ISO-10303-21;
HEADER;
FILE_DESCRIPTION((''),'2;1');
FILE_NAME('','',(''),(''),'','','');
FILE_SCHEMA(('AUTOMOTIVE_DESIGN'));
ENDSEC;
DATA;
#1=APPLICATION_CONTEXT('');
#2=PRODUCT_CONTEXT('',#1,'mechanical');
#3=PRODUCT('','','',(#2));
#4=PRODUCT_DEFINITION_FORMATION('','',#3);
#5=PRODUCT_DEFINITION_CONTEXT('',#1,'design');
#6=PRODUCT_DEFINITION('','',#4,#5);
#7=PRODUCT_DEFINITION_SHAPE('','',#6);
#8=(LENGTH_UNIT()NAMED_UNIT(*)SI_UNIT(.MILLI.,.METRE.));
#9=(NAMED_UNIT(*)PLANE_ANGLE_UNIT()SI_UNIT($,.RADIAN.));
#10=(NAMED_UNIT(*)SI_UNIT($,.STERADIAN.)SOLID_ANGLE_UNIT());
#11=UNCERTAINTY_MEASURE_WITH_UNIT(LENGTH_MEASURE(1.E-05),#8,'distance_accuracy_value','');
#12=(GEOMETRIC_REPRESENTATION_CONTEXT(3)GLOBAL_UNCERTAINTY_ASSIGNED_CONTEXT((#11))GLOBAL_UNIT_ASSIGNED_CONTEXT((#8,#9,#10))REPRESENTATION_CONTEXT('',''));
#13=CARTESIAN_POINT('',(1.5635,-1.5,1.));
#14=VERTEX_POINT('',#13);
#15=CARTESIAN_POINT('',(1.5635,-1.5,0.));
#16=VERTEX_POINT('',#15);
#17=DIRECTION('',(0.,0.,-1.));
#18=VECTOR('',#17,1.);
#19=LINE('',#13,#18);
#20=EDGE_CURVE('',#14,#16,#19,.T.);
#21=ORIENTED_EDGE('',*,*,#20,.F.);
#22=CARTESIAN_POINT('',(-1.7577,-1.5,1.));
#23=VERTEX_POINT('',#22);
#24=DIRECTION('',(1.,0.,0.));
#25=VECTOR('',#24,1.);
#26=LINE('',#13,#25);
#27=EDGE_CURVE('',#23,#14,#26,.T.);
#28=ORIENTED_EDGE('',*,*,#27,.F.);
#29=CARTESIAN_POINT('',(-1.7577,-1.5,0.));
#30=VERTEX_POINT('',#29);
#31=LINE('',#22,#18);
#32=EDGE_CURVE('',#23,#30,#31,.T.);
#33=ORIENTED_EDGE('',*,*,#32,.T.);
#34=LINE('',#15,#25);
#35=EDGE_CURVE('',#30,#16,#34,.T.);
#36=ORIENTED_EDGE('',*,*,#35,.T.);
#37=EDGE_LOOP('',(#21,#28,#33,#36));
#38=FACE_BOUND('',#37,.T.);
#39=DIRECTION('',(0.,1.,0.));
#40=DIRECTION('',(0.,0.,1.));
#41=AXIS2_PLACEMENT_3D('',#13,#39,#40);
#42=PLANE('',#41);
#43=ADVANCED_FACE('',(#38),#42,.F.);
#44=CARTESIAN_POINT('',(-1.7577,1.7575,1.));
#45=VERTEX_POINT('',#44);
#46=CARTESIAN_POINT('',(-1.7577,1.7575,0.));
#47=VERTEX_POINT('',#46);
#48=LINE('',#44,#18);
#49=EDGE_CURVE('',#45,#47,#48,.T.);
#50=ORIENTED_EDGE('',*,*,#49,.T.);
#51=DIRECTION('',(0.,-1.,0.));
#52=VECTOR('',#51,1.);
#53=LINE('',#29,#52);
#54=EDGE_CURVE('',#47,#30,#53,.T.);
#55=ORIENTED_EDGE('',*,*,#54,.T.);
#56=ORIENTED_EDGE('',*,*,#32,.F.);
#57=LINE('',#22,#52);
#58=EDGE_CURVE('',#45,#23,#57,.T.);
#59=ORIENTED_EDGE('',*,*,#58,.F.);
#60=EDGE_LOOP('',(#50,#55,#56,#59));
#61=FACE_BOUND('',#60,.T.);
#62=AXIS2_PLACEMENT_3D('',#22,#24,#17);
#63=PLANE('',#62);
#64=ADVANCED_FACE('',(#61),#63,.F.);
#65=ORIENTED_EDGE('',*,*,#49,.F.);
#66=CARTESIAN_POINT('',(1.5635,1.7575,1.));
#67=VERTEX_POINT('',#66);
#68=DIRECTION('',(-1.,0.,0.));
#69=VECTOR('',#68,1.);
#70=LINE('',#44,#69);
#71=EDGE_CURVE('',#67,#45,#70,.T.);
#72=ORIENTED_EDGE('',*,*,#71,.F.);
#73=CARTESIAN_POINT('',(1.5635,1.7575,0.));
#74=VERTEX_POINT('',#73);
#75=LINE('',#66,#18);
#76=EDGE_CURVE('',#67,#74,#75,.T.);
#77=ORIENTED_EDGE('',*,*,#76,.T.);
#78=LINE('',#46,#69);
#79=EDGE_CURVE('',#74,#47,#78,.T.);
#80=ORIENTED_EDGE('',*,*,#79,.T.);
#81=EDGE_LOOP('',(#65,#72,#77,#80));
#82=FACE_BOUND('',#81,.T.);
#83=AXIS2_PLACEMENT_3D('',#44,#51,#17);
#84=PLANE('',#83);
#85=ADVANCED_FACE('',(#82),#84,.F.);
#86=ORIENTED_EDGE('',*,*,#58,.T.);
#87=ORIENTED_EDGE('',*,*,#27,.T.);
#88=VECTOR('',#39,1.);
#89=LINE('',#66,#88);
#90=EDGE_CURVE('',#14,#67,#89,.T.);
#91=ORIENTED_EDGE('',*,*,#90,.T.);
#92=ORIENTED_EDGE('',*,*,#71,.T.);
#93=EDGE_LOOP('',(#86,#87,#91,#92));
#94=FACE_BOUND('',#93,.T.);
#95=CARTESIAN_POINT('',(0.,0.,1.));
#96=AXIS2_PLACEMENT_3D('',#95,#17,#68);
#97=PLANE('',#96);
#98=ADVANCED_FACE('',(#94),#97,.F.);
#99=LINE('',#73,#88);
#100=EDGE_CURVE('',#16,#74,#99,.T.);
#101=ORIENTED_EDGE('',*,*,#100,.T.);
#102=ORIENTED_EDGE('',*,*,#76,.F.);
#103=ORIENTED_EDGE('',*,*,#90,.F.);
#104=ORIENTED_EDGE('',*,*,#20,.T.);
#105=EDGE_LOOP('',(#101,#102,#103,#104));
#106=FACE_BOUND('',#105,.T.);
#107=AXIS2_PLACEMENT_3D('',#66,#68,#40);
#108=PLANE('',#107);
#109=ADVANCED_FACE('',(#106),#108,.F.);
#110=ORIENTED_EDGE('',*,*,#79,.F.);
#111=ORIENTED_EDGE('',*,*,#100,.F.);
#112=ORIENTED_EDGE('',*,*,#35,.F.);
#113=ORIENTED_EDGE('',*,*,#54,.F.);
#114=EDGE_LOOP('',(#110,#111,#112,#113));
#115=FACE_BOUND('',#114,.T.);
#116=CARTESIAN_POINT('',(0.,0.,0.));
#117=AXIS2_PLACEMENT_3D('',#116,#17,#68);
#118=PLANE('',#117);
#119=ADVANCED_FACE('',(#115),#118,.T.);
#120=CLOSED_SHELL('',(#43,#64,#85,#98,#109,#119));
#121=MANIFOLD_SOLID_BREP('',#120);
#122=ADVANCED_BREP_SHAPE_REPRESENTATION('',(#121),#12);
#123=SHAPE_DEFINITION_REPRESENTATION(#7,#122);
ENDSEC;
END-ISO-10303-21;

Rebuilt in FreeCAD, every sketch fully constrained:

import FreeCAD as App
import Part
import Sketcher


def add_polygon(sketch, points):
    """Adds a closed chain of lines whose ends are joined by coincident constraints."""
    first, n = sketch.GeometryCount, len(points)
    for a, b in zip(points, points[1:] + points[:1]):
        sketch.addGeometry(Part.LineSegment(App.Vector(*a, 0), App.Vector(*b, 0)), False)
    for i in range(n):
        sketch.addConstraint(Sketcher.Constraint("Coincident", first + i, 2, first + (i + 1) % n, 1))

doc = App.newDocument("Part")
body = doc.addObject("PartDesign::Body", "Body")

sketch1 = body.newObject("Sketcher::SketchObject", "Sketch")
sketch1.AttachmentSupport = (doc.getObject("XY_Plane"), [""])
sketch1.MapMode = "FlatFace"
add_polygon(sketch1, [(-1.7577, 1.7575), (-1.7577, -1.5), (1.5635, -1.5), (1.5635, 1.7575)])
sketch1.addConstraint([
    Sketcher.Constraint("Vertical", 0),
    Sketcher.Constraint("Horizontal", 1),
    Sketcher.Constraint("Vertical", 2),
    Sketcher.Constraint("Horizontal", 3),
    Sketcher.Constraint("DistanceY", 0, 2, -1, 1, 1.5),
    Sketcher.Constraint("DistanceX", 1, 1, 1, 2, 3.3212),
    Sketcher.Constraint("DistanceY", 0, 2, 0, 1, 3.2575),
    Sketcher.Constraint("DistanceX", 0, 2, -1, 1, 1.7577),
])
pad1 = body.newObject("PartDesign::Pad", "Pad")
pad1.Profile = sketch1
pad1.Length = 1

doc.recompute()
